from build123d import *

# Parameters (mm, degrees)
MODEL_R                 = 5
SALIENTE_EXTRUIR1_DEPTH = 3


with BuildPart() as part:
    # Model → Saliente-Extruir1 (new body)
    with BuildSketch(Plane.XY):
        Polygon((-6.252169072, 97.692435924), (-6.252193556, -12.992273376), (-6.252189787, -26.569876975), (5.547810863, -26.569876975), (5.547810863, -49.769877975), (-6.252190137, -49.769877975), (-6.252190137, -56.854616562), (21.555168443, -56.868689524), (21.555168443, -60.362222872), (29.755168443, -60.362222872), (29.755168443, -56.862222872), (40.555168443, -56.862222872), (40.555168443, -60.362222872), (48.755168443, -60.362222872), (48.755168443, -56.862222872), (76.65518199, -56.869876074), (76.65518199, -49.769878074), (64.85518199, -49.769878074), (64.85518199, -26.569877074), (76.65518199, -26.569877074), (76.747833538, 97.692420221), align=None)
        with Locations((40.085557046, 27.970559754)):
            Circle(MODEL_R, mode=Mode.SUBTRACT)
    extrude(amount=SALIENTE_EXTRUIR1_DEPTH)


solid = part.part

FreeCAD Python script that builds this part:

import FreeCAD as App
import Part
import Sketcher
Q = App.Units.Quantity


def add_polygon(sketch, points):
    """Adds a closed chain of lines whose ends are joined by coincident constraints."""
    first, n = sketch.GeometryCount, len(points)
    for a, b in zip(points, points[1:] + points[:1]):
        sketch.addGeometry(Part.LineSegment(App.Vector(*a, 0), App.Vector(*b, 0)), False)
    for i in range(n):
        sketch.addConstraint(Sketcher.Constraint("Coincident", first + i, 2, first + (i + 1) % n, 1))

doc = App.newDocument("Part")
params = doc.addObject("Spreadsheet::Sheet", "Params")
for row, (alias, value) in enumerate([
    ("sketch1_diameter", "10 mm"),
    ("sketch1_width", "11.800001 mm"),
    ("sketch1_width2", "8.2 mm"),
    ("sketch1_width3", "10.8 mm"),
    ("sketch1_height", "23.200001 mm"),
    ("pad1_length", "3 mm"),
], start=1):
    params.set(f"A{row}", alias)
    params.set(f"B{row}", "=" + value)
    params.setAlias(f"B{row}", alias)

body = doc.addObject("PartDesign::Body", "Body")

sketch1 = body.newObject("Sketcher::SketchObject", "Sketch")
sketch1.AttachmentSupport = (doc.getObject("XY_Plane"), [""])
sketch1.MapMode = "FlatFace"
add_polygon(sketch1, [(-6.3, 97.7), (-6.3, -13), (-6.3, -26.6), (5.5, -26.6), (5.5, -49.8), (-6.3, -49.8), (-6.3, -56.9), (21.6, -56.9), (21.6, -60.4), (29.8, -60.4), (29.8, -56.9), (40.6, -56.9), (40.6, -60.4), (48.8, -60.4), (48.8, -56.9), (76.7, -56.9), (76.7, -49.8), (64.9, -49.8), (64.9, -26.6), (76.7, -26.6), (76.7, 97.7)])
sketch1.addGeometry(Part.Circle(App.Vector(40.1, 28, 0), App.Vector(0, 0, 1), 5), False)
sketch1.addConstraint(Sketcher.Constraint("Horizontal", 2))
sketch1.addConstraint(Sketcher.Constraint("Vertical", 3))
sketch1.addConstraint(Sketcher.Constraint("Horizontal", 4))
sketch1.addConstraint(Sketcher.Constraint("Vertical", 5))
sketch1.addConstraint(Sketcher.Constraint("Vertical", 7))
sketch1.addConstraint(Sketcher.Constraint("Horizontal", 8))
sketch1.addConstraint(Sketcher.Constraint("Vertical", 9))
sketch1.addConstraint(Sketcher.Constraint("Horizontal", 10))
sketch1.addConstraint(Sketcher.Constraint("Vertical", 11))
sketch1.addConstraint(Sketcher.Constraint("Horizontal", 12))
sketch1.addConstraint(Sketcher.Constraint("Vertical", 13))
sketch1.addConstraint(Sketcher.Constraint("Vertical", 15))
sketch1.addConstraint(Sketcher.Constraint("Horizontal", 16))
sketch1.addConstraint(Sketcher.Constraint("Vertical", 17))
sketch1.addConstraint(Sketcher.Constraint("Horizontal", 18))
sketch1.addConstraint(Sketcher.Constraint("Parallel", 0, 1))
sketch1.addConstraint(Sketcher.Constraint("Perpendicular", 1, 20))
sketch1.addConstraint(Sketcher.Constraint("Horizontal", 8, 2, 11, 2))
sketch1.addConstraint(Sketcher.Constraint("Horizontal", 10, 2, 13, 2))
sketch1.addConstraint(Sketcher.Constraint("Horizontal", 4, 2, 15, 2))
sketch1.addConstraint(Sketcher.Constraint("Horizontal", 2, 2, 17, 2))
sketch1.addConstraint(Sketcher.Constraint("Vertical", 1, 2, 4, 2))
sketch1.addConstraint(Sketcher.Constraint("Vertical", 15, 2, 18, 2))
sketch1.addConstraint(Sketcher.Constraint("Equal", 8, 12))
sketch1.addConstraint(Sketcher.Constraint("Equal", 4, 16))
sketch1.addConstraint(Sketcher.Constraint("Diameter", 21, Q("10 mm")))
sketch1.addConstraint(Sketcher.Constraint("Angle", 0, Q("-90.000013 deg")))
sketch1.addConstraint(Sketcher.Constraint("DistanceX", 2, 1, 2, 2, Q("11.800001 mm")))
sketch1.addConstraint(Sketcher.Constraint("DistanceX", 8, 1, 8, 2, Q("8.2 mm")))
sketch1.addConstraint(Sketcher.Constraint("DistanceX", 10, 1, 10, 2, Q("10.8 mm")))
sketch1.addConstraint(Sketcher.Constraint("DistanceY", 3, 2, 3, 1, Q("23.200001 mm")))
sketch1.addConstraint(Sketcher.Constraint("DistanceY", 9, 1, 9, 2, Q("3.5 mm")))
sketch1.addConstraint(Sketcher.Constraint("DistanceY", 14, 2, 17, 2, Q("30.299999 mm")))
sketch1.addConstraint(Sketcher.Constraint("DistanceY", 5, 2, 5, 1, Q("7.084739 mm")))
sketch1.addConstraint(Sketcher.Constraint("Distance", 0, Q("110.684709 mm")))
sketch1.addConstraint(Sketcher.Constraint("Distance", 19, Q("124.262332 mm")))
sketch1.addConstraint(Sketcher.Constraint("DistanceY", 7, 2, 7, 1, Q("3.493533 mm")))
sketch1.addConstraint(Sketcher.Constraint("DistanceY", -1, 1, 21, 3, Q("27.97056 mm")))
sketch1.addConstraint(Sketcher.Constraint("DistanceX", 1, 2, -1, 1, Q("6.25219 mm")))
sketch1.addConstraint(Sketcher.Constraint("DistanceX", -1, 1, 6, 2, Q("21.555168 mm")))
sketch1.addConstraint(Sketcher.Constraint("DistanceY", 6, 2, -1, 1, Q("56.86869 mm")))
sketch1.addConstraint(Sketcher.Constraint("DistanceX", -1, 1, 14, 2, Q("76.655182 mm")))
sketch1.addConstraint(Sketcher.Constraint("DistanceY", 15, 2, -1, 1, Q("49.769878 mm")))
sketch1.addConstraint(Sketcher.Constraint("DistanceX", 0, 2, 21, 3, Q("46.337751 mm")))
sketch1.addConstraint(Sketcher.Constraint("DistanceX", 18, 2, 19, 2, Q("0.092652 mm")))
sketch1.setExpression("Constraints[46]", "Params.sketch1_diameter")
sketch1.setExpression("Constraints[48]", "Params.sketch1_width")
sketch1.setExpression("Constraints[49]", "Params.sketch1_width2")
sketch1.setExpression("Constraints[50]", "Params.sketch1_width3")
sketch1.setExpression("Constraints[51]", "Params.sketch1_height")
pad1 = body.newObject("PartDesign::Pad", "Pad")
pad1.Profile = sketch1
pad1.setExpression("Length", "Params.pad1_length")

doc.recompute()
